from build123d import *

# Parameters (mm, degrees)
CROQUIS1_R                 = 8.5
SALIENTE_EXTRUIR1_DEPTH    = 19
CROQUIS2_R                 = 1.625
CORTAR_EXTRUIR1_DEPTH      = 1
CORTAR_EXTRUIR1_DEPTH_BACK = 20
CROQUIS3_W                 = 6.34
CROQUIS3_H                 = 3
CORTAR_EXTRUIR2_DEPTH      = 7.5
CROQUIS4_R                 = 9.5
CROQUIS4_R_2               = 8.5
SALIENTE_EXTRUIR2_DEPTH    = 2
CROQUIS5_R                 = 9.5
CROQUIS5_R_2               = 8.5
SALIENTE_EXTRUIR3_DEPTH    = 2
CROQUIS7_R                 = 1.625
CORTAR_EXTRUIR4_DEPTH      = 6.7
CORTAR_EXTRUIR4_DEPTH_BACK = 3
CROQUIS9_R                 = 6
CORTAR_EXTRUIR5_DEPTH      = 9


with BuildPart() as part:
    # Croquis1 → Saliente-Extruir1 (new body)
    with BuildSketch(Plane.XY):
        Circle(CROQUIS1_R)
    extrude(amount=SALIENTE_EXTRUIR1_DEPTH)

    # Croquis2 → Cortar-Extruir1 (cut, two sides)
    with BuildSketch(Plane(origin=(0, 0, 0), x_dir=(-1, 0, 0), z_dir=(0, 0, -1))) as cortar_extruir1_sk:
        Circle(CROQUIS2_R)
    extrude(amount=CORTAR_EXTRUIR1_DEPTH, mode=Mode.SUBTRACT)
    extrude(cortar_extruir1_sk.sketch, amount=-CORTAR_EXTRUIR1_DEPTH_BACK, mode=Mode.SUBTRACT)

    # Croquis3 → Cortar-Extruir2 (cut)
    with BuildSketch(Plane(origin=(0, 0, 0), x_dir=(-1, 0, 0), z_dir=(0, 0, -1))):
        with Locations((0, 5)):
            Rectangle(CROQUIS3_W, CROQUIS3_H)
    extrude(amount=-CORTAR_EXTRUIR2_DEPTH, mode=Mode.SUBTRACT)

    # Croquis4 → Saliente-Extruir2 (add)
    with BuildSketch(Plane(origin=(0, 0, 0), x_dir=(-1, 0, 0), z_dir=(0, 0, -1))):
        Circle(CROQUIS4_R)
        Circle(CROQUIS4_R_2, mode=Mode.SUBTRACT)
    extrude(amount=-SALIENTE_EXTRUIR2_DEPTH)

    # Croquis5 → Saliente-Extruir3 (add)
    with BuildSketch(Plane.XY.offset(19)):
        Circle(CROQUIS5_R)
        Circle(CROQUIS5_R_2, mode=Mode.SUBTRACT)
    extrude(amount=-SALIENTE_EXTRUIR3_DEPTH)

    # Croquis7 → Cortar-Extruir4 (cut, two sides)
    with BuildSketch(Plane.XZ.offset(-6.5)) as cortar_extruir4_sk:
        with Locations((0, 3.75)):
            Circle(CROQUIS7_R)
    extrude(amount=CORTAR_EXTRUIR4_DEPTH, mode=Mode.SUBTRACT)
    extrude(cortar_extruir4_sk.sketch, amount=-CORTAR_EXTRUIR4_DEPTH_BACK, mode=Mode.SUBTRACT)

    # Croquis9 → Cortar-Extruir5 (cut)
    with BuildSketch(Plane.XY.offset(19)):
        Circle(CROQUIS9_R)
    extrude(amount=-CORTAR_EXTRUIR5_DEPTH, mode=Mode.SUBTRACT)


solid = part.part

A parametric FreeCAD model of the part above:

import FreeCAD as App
import Part
import Sketcher
from FreeCAD import Vector

doc = App.newDocument("Part")
body = doc.addObject("PartDesign::Body", "Body")

# Sketch on XY plane
sketch1 = doc.addObject("Sketcher::SketchObject", "Sketch")
body.addObject(sketch1)
sketch1.AttachmentSupport = (doc.XY_Plane, [""])
sketch1.MapMode = "FlatFace"
sketch1.addGeometry(Part.Circle(Vector(0, 0, 0), Vector(0, 0, 1), 8), False)
sketch1.addConstraint(Sketcher.Constraint("Coincident", 0, 3, -1, 1))
sketch1.addConstraint(Sketcher.Constraint("Diameter", 0, 17.0))
pad1 = doc.addObject("PartDesign::Pad", "Pad")
body.addObject(pad1)
pad1.Profile = sketch1
pad1.Length = 19

# Sketch on XY plane
sketch2 = doc.addObject("Sketcher::SketchObject", "Sketch001")
body.addObject(sketch2)
sketch2.AttachmentSupport = (doc.XY_Plane, [""])
sketch2.MapMode = "FlatFace"
sketch2.addGeometry(Part.Circle(Vector(0, 0, 0), Vector(0, 0, 1), 1.6), False)
sketch2.addConstraint(Sketcher.Constraint("Coincident", 0, 3, -1, 1))
sketch2.addConstraint(Sketcher.Constraint("Diameter", 0, 3.25))
pocket1 = doc.addObject("PartDesign::Pocket", "Pocket")
body.addObject(pocket1)
pocket1.Profile = sketch2
pocket1.Type = "ThroughAll"
pocket1.Midplane = True

# Sketch on XY plane
sketch3 = doc.addObject("Sketcher::SketchObject", "Sketch002")
body.addObject(sketch3)
sketch3.AttachmentSupport = (doc.XY_Plane, [""])
sketch3.MapMode = "FlatFace"
sketch3.addGeometry(Part.LineSegment(Vector(3.2, 6.5, 0), Vector(3.2, 3.5, 0)), False)
sketch3.addGeometry(Part.LineSegment(Vector(3.2, 3.5, 0), Vector(-3.2, 3.5, 0)), False)
sketch3.addGeometry(Part.LineSegment(Vector(-3.2, 3.5, 0), Vector(-3.2, 6.5, 0)), False)
sketch3.addGeometry(Part.LineSegment(Vector(-3.2, 6.5, 0), Vector(3.2, 6.5, 0)), False)
sketch3.addConstraint(Sketcher.Constraint("Coincident", 0, 2, 1, 1))
sketch3.addConstraint(Sketcher.Constraint("Coincident", 1, 2, 2, 1))
sketch3.addConstraint(Sketcher.Constraint("Coincident", 2, 2, 3, 1))
sketch3.addConstraint(Sketcher.Constraint("Coincident", 3, 2, 0, 1))
sketch3.addConstraint(Sketcher.Constraint("Vertical", 0))
sketch3.addConstraint(Sketcher.Constraint("Horizontal", 1))
sketch3.addConstraint(Sketcher.Constraint("Vertical", 2))
sketch3.addConstraint(Sketcher.Constraint("Horizontal", 3))
sketch3.addConstraint(Sketcher.Constraint("DistanceY", 0, 2, 0, 1, 3.0))
sketch3.addConstraint(Sketcher.Constraint("DistanceX", 1, 2, 1, 1, 6.34))
sketch3.addConstraint(Sketcher.Constraint("DistanceY", -1, 1, 0, 2, 3.5))
sketch3.addConstraint(Sketcher.Constraint("DistanceX", -1, 1, 0, 2, 3.17))
pocket2 = doc.addObject("PartDesign::Pocket", "Pocket001")
body.addObject(pocket2)
pocket2.Profile = sketch3
pocket2.Length = 7.5
pocket2.Reversed = True

# Sketch on XY plane
sketch4 = doc.addObject("Sketcher::SketchObject", "Sketch003")
body.addObject(sketch4)
sketch4.AttachmentSupport = (doc.XY_Plane, [""])
sketch4.MapMode = "FlatFace"
sketch4.addGeometry(Part.Circle(Vector(0, 0, 0), Vector(0, 0, 1), 10), False)
sketch4.addGeometry(Part.Circle(Vector(0, 0, 0), Vector(0, 0, 1), 8), False)
sketch4.addConstraint(Sketcher.Constraint("Coincident", 0, 3, -1, 1))
sketch4.addConstraint(Sketcher.Constraint("Coincident", 1, 3, -1, 1))
sketch4.addConstraint(Sketcher.Constraint("Diameter", 0, 19.0))
sketch4.addConstraint(Sketcher.Constraint("Diameter", 1, 17.0))
pad2 = doc.addObject("PartDesign::Pad", "Pad001")
body.addObject(pad2)
pad2.Profile = sketch4
pad2.Length = 2

# Sketch on XY plane
sketch5 = doc.addObject("Sketcher::SketchObject", "Sketch004")
body.addObject(sketch5)
sketch5.AttachmentSupport = (doc.XY_Plane, [""])
sketch5.MapMode = "FlatFace"
sketch5.AttachmentOffset = App.Placement(Vector(0, 0, 19), App.Rotation())
sketch5.addGeometry(Part.Circle(Vector(0, 0, 0), Vector(0, 0, 1), 10), False)
sketch5.addGeometry(Part.Circle(Vector(0, 0, 0), Vector(0, 0, 1), 8), False)
sketch5.addConstraint(Sketcher.Constraint("Coincident", 0, 3, -1, 1))
sketch5.addConstraint(Sketcher.Constraint("Coincident", 1, 3, -1, 1))
sketch5.addConstraint(Sketcher.Constraint("Diameter", 0, 19.0))
sketch5.addConstraint(Sketcher.Constraint("Diameter", 1, 17.0))
pad3 = doc.addObject("PartDesign::Pad", "Pad002")
body.addObject(pad3)
pad3.Profile = sketch5
pad3.Length = 2
pad3.Reversed = True

# Sketch on XZ plane
sketch6 = doc.addObject("Sketcher::SketchObject", "Sketch005")
body.addObject(sketch6)
sketch6.AttachmentSupport = (doc.XZ_Plane, [""])
sketch6.MapMode = "FlatFace"
sketch6.AttachmentOffset = App.Placement(Vector(0, 0, -6.5), App.Rotation())
sketch6.addGeometry(Part.Circle(Vector(0, 3.8, 0), Vector(0, 0, 1), 1.6), False)
sketch6.addConstraint(Sketcher.Constraint("PointOnObject", 0, 3, -2))
sketch6.addConstraint(Sketcher.Constraint("Diameter", 0, 3.25))
sketch6.addConstraint(Sketcher.Constraint("DistanceY", -1, 1, 0, 3, 3.75))
pocket3 = doc.addObject("PartDesign::Pocket", "Pocket002")
body.addObject(pocket3)
pocket3.Profile = sketch6
pocket3.Type = "TwoLengths"
pocket3.Length = 6.7
pocket3.Length2 = 3
pocket3.Reversed = True

# Sketch on XY plane
sketch7 = doc.addObject("Sketcher::SketchObject", "Sketch006")
body.addObject(sketch7)
sketch7.AttachmentSupport = (doc.XY_Plane, [""])
sketch7.MapMode = "FlatFace"
sketch7.AttachmentOffset = App.Placement(Vector(0, 0, 19), App.Rotation())
sketch7.addGeometry(Part.Circle(Vector(0, 0, 0), Vector(0, 0, 1), 6), False)
sketch7.addConstraint(Sketcher.Constraint("Coincident", 0, 3, -1, 1))
sketch7.addConstraint(Sketcher.Constraint("Diameter", 0, 12.0))
pocket4 = doc.addObject("PartDesign::Pocket", "Pocket003")
body.addObject(pocket4)
pocket4.Profile = sketch7
pocket4.Length = 9

doc.recompute()
